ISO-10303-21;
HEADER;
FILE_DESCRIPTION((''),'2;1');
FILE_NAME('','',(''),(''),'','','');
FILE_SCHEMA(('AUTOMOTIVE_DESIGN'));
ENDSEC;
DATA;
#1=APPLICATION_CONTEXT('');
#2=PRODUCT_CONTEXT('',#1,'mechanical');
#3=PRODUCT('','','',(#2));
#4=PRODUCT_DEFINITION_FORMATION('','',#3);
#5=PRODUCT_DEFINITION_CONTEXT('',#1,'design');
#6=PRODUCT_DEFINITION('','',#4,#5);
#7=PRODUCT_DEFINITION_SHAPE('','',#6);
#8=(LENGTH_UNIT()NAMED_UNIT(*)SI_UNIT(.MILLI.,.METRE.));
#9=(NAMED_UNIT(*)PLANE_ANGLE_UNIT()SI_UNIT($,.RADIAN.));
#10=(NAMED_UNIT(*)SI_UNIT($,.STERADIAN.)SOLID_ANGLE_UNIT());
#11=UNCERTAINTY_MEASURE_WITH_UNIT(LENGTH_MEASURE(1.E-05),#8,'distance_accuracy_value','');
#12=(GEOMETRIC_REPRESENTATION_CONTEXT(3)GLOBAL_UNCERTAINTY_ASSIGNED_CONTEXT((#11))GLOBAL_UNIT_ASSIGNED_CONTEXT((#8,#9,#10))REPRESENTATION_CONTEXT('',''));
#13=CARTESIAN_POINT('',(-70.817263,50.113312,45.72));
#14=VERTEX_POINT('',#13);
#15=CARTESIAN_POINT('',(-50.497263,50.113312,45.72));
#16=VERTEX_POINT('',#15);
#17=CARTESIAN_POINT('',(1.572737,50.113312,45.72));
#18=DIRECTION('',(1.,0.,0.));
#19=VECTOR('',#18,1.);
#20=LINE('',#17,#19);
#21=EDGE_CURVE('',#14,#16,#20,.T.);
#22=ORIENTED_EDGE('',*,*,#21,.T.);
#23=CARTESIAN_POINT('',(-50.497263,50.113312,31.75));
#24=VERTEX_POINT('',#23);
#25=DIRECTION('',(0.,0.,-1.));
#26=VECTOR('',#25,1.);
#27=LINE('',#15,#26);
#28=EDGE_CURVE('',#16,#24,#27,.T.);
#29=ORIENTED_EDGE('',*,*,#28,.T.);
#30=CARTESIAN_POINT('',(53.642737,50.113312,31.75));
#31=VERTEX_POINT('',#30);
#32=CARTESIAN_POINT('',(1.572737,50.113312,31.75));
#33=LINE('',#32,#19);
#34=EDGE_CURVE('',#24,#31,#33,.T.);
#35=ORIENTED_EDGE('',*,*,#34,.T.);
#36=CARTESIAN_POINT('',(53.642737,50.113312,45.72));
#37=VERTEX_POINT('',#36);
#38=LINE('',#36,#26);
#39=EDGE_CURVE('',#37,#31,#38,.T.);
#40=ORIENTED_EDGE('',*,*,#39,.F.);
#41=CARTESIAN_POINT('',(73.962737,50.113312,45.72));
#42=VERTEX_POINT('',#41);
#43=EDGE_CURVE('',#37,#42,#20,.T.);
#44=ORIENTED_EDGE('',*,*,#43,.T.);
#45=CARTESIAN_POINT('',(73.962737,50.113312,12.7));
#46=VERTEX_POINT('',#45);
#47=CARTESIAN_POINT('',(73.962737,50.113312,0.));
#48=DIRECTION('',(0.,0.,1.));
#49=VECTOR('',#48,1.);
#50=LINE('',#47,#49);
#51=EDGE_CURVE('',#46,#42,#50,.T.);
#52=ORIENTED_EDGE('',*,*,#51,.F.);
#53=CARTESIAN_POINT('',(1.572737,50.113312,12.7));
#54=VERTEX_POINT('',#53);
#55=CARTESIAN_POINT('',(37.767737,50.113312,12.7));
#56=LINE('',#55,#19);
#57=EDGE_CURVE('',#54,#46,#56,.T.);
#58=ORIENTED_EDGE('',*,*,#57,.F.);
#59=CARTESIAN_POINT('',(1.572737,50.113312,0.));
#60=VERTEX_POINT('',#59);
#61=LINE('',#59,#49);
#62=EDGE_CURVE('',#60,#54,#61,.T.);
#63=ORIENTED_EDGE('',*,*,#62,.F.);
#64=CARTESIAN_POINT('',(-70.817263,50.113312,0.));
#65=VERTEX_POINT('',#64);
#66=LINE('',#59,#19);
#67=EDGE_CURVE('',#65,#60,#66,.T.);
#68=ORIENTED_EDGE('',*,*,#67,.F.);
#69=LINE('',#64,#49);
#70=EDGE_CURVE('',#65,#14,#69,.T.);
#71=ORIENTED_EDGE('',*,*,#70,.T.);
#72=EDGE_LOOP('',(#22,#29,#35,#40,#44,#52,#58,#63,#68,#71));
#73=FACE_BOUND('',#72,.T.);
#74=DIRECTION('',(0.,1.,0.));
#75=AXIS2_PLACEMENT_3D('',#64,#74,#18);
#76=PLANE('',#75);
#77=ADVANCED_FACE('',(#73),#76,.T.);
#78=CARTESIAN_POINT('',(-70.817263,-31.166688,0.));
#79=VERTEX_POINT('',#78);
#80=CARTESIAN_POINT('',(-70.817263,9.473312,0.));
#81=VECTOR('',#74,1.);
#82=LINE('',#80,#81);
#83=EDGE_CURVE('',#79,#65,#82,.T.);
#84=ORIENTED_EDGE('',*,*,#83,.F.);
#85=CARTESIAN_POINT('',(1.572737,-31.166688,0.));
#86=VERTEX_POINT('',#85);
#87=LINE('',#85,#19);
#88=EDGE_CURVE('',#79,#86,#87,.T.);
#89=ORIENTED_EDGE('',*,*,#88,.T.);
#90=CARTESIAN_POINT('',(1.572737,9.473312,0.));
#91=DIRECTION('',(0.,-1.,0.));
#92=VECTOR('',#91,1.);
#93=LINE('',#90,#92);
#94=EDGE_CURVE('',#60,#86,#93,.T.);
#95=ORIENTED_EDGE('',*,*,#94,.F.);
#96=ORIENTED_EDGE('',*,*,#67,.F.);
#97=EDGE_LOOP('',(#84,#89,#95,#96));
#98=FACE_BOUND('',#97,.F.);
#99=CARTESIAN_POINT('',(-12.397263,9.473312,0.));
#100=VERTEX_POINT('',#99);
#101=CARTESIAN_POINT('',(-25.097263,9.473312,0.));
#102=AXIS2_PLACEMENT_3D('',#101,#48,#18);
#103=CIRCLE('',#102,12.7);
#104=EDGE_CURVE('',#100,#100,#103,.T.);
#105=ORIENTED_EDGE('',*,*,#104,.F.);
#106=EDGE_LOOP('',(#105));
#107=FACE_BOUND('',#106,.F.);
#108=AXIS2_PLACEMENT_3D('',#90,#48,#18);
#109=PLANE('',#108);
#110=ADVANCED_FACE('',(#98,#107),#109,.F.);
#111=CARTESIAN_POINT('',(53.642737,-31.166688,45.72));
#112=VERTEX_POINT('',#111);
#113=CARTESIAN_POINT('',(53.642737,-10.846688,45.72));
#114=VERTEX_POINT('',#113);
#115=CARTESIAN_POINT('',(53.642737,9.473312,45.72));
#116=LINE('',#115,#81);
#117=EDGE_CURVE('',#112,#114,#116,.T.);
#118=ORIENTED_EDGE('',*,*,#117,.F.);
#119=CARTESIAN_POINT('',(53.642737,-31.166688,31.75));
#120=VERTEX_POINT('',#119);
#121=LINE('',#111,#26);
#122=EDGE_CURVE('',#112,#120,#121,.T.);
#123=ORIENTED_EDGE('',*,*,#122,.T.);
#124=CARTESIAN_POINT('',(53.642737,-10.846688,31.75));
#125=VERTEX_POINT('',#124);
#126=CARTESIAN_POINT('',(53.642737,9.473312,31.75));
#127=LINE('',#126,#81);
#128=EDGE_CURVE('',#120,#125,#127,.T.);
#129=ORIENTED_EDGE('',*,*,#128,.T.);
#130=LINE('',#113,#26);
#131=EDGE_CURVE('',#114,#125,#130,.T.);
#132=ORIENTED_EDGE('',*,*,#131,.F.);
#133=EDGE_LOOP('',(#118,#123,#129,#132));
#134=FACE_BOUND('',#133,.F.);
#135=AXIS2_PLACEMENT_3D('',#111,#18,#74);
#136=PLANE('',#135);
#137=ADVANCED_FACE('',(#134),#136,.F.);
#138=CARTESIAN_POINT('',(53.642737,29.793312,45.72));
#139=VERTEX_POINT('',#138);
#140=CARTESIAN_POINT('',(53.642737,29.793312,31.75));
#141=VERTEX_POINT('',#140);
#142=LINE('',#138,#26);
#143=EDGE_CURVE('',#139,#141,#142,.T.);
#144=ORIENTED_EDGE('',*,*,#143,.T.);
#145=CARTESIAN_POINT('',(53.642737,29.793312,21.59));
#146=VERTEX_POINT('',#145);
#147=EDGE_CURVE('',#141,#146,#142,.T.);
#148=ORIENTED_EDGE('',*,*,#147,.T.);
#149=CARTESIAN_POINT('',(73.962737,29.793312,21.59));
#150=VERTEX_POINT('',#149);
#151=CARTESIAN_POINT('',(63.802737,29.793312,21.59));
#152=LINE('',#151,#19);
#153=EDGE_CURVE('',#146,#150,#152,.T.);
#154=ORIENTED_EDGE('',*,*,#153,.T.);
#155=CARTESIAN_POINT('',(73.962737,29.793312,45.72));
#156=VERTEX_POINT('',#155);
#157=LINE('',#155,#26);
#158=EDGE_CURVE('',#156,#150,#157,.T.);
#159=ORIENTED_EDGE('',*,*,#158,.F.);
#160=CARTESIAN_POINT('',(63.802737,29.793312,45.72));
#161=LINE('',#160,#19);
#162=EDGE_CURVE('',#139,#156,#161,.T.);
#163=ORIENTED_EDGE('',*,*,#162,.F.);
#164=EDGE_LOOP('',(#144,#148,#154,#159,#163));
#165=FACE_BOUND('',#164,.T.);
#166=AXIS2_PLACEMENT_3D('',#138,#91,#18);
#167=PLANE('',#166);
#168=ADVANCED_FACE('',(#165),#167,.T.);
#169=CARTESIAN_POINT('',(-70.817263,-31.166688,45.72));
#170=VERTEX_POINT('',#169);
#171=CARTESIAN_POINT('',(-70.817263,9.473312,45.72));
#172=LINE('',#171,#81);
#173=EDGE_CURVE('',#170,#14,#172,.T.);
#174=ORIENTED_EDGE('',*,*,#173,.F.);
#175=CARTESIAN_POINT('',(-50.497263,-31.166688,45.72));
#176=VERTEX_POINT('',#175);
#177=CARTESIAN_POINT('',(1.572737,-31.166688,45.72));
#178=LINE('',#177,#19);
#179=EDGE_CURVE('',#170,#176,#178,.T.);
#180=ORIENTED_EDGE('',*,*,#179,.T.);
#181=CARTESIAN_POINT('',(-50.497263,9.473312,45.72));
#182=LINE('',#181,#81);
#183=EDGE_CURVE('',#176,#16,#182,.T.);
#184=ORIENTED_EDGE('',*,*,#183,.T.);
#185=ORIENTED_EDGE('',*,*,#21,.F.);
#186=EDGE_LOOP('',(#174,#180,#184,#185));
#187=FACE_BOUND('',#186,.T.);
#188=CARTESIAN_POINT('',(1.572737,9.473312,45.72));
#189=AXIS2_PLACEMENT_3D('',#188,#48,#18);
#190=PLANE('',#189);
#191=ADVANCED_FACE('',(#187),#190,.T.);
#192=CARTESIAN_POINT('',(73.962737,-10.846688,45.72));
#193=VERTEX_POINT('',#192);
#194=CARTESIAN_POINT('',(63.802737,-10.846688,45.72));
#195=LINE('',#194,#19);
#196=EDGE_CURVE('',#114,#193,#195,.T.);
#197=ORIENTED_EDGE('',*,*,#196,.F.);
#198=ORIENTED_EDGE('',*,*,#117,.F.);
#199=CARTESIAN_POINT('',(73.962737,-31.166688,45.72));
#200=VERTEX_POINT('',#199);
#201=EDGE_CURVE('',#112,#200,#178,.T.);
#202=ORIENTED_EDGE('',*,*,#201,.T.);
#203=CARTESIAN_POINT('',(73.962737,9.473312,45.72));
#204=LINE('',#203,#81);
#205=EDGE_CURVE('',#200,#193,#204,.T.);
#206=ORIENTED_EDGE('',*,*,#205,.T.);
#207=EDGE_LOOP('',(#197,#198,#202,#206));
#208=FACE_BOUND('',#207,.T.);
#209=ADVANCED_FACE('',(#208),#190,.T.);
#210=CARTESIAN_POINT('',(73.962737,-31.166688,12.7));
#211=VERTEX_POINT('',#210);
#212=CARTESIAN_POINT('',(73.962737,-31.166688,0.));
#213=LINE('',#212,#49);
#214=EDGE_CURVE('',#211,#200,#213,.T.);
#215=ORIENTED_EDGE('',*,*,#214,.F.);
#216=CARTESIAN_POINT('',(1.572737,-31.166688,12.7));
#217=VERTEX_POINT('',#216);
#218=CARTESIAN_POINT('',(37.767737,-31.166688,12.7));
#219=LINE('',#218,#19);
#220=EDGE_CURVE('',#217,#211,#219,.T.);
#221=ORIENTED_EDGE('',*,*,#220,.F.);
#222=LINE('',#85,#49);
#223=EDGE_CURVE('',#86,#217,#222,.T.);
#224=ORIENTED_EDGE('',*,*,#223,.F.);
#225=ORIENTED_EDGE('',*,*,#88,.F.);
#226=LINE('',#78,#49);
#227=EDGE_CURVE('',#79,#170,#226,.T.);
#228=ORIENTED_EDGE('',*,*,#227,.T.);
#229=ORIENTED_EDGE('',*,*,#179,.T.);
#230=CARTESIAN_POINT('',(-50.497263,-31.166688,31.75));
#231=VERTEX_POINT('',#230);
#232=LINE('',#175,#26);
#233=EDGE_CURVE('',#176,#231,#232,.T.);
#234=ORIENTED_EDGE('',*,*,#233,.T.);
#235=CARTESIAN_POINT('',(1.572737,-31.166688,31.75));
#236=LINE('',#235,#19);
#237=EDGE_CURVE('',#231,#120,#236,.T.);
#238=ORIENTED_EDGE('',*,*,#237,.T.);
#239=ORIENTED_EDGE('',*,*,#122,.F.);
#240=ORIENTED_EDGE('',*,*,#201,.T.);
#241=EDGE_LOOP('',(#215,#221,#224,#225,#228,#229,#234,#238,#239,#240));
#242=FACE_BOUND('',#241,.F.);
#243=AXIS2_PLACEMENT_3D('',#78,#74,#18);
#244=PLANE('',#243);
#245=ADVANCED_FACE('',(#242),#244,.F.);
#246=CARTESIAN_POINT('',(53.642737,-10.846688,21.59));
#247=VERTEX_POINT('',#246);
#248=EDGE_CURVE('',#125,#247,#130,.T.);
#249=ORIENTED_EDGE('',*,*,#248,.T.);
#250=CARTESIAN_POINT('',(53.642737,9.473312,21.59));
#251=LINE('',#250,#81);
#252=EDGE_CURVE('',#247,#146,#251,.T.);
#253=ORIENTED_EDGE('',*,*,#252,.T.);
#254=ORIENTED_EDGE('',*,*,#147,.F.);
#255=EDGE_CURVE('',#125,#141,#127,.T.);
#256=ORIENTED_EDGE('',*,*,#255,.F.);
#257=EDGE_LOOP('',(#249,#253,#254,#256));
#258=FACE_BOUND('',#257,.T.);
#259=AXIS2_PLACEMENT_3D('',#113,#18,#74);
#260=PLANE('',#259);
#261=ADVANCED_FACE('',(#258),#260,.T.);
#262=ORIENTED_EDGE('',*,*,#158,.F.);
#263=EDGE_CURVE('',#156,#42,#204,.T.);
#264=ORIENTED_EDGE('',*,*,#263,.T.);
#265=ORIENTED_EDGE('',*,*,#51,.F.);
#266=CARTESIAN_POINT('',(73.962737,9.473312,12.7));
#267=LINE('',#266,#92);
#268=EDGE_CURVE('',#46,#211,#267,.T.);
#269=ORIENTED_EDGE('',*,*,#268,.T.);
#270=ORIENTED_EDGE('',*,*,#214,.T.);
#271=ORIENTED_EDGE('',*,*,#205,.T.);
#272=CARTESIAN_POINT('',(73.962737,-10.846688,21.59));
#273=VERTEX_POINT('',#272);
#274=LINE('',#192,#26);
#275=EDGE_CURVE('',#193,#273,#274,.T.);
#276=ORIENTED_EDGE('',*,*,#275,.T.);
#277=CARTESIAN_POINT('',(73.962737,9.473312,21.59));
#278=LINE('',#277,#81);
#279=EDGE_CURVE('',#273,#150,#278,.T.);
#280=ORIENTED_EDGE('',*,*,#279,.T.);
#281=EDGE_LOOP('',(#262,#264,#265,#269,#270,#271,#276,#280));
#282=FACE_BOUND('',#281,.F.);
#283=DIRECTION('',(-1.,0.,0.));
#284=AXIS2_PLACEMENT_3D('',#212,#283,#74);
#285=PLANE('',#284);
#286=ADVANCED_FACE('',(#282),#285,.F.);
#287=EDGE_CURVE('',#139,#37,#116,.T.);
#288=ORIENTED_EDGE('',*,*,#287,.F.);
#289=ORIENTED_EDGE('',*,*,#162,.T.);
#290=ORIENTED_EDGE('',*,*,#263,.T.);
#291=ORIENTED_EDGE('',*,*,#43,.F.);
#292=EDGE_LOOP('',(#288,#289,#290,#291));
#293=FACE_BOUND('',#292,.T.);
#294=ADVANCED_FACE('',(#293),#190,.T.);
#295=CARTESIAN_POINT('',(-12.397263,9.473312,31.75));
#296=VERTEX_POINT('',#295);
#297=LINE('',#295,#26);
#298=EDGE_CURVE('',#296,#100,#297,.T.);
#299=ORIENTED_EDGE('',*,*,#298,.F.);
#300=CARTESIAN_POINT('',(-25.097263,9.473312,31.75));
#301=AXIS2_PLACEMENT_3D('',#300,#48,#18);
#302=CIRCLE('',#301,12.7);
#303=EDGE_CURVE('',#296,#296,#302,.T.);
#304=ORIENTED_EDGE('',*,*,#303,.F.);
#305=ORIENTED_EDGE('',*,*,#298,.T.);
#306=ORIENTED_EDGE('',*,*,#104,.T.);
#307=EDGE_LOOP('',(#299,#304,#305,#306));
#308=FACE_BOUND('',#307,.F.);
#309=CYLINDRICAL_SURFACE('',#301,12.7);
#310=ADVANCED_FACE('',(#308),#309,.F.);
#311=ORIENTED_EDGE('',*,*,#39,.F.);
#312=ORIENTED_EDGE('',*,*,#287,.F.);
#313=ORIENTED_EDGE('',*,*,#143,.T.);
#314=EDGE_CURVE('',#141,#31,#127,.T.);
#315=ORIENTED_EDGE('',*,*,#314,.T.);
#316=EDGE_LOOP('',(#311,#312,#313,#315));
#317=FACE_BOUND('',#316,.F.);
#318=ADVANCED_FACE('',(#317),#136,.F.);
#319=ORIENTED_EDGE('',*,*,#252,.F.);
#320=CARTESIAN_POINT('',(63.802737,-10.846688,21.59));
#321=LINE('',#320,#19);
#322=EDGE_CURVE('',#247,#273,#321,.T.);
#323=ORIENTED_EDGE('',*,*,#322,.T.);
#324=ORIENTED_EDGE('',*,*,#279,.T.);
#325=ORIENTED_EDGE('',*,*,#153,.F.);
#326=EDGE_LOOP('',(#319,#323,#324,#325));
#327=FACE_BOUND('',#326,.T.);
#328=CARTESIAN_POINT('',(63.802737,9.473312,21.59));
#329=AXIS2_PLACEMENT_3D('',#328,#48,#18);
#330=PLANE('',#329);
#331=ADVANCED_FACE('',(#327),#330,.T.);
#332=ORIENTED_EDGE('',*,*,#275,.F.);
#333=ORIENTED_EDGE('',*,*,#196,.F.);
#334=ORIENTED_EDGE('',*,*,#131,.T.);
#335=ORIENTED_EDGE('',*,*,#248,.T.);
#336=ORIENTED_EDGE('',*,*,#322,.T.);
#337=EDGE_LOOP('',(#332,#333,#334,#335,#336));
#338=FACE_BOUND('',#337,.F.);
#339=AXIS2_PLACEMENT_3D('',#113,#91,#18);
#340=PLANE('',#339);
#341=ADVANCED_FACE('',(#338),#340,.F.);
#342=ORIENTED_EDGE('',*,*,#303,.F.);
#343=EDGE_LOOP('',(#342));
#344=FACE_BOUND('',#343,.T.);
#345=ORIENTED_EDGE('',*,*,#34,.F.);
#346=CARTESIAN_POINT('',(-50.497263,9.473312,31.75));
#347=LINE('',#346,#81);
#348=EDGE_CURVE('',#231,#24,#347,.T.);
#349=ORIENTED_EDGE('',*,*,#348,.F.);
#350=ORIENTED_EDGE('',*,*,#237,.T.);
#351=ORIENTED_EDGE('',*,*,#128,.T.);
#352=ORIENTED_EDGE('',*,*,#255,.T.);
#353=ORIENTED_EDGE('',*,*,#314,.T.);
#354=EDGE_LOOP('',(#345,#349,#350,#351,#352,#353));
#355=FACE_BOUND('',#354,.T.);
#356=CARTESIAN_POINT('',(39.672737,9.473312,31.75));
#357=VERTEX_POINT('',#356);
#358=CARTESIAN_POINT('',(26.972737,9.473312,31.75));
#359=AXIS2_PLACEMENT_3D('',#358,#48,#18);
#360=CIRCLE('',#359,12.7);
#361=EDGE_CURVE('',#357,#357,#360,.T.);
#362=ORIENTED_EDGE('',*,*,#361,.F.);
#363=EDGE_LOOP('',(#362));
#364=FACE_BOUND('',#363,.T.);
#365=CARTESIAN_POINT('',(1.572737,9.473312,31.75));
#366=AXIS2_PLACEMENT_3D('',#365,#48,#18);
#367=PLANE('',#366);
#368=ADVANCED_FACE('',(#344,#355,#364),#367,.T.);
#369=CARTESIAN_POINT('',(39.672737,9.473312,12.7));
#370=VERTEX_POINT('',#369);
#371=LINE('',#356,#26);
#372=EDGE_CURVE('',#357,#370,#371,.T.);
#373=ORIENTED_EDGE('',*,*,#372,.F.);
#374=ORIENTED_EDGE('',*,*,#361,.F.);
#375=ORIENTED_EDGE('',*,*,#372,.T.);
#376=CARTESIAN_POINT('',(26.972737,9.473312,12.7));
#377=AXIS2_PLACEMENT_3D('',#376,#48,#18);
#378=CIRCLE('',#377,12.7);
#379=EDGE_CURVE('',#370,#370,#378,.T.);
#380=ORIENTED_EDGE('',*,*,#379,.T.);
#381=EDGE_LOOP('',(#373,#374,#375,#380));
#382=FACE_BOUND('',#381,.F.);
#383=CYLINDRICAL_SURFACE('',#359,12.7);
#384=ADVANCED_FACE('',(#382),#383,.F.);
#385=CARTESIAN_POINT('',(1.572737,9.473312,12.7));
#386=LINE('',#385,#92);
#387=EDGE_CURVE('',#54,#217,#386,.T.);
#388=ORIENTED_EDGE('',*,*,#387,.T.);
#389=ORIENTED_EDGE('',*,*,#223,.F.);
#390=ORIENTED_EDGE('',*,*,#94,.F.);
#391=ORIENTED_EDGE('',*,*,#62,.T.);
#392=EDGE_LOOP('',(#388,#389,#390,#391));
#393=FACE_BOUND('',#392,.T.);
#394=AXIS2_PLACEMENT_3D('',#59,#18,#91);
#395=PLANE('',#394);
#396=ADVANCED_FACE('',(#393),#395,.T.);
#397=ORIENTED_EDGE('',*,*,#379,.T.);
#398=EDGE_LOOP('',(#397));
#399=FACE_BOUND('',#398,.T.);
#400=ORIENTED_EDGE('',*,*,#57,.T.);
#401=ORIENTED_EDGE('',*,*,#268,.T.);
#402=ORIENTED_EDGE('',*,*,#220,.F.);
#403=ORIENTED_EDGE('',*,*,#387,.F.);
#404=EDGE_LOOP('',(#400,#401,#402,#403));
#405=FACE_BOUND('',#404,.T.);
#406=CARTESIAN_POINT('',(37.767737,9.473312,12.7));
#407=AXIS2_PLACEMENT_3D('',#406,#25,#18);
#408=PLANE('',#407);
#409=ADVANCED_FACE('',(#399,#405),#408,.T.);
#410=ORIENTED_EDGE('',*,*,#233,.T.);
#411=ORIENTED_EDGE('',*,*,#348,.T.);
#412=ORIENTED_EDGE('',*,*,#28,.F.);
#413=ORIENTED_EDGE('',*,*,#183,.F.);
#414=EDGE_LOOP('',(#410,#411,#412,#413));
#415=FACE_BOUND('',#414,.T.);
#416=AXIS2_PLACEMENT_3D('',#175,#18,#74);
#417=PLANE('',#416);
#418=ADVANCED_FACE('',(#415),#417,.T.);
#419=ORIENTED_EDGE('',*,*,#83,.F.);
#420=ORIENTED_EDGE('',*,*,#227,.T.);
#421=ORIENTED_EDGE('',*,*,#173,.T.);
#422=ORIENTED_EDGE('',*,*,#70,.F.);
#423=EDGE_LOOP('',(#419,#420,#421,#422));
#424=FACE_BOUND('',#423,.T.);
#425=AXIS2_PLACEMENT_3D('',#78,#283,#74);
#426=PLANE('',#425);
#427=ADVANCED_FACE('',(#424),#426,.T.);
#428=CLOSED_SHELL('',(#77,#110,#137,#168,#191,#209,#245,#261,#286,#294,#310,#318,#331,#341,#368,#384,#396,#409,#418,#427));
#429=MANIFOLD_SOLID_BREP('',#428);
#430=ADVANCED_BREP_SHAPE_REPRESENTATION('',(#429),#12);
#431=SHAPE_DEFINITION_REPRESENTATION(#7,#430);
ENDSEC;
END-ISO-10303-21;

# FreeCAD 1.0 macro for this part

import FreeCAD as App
import Part
import Sketcher

V = App.Vector
Q = App.Units.Quantity


def add_polygon(sketch, points):
    """Adds a closed chain of lines whose ends are joined by coincident constraints."""
    first, n = sketch.GeometryCount, len(points)
    for a, b in zip(points, points[1:] + points[:1]):
        sketch.addGeometry(Part.LineSegment(App.Vector(*a, 0), App.Vector(*b, 0)), False)
    for i in range(n):
        sketch.addConstraint(Sketcher.Constraint("Coincident", first + i, 2, first + (i + 1) % n, 1))

doc = App.newDocument("Part")
body = doc.addObject("PartDesign::Body", "Body")

# Sketch on XY plane
sketch1 = body.newObject("Sketcher::SketchObject", "Sketch")
sketch1.AttachmentSupport = (doc.getObject("XY_Plane"), [""])
sketch1.MapMode = "FlatFace"
add_polygon(sketch1, [(-70.817263, 50.113312), (-70.817263, -31.166688), (73.962737, -31.166688), (73.962737, 50.113312)])  # lines 0-3
sketch1.addConstraint([
    Sketcher.Constraint("Vertical", 0),
    Sketcher.Constraint("Horizontal", 1),
    Sketcher.Constraint("Vertical", 2),
    Sketcher.Constraint("Horizontal", 3),
    Sketcher.Constraint("DistanceX", 1, 1, 1, 2, Q("5.7 in")),
    Sketcher.Constraint("DistanceY", 0, 2, 0, 1, Q("3.2 in")),
    Sketcher.Constraint("DistanceY", 0, 2, -1, 1, 31.166688),
    Sketcher.Constraint("DistanceX", 0, 2, -1, 1, 70.817263),
])
pad1 = body.newObject("PartDesign::Pad", "Pad")
pad1.Profile = sketch1
pad1.Length = Q("1.8 in")

# Sketch on XY plane
sketch2 = body.newObject("Sketcher::SketchObject", "Sketch001")
sketch2.AttachmentSupport = (doc.getObject("XY_Plane"), [""])
sketch2.MapMode = "FlatFace"
sketch2.AttachmentOffset = App.Placement(V(0, 0, 1.8 * 25.4), App.Rotation())
add_polygon(sketch2, [(-50.497263, 50.113312), (-50.497263, -31.166688), (53.642737, -31.166688), (53.642737, 50.113312)])  # lines 0-3
sketch2.addConstraint([
    Sketcher.Constraint("Vertical", 0),
    Sketcher.Constraint("Horizontal", 1),
    Sketcher.Constraint("Vertical", 2),
    Sketcher.Constraint("Horizontal", 3),
    Sketcher.Constraint("DistanceX", 1, 1, 1, 2, Q("4.1 in")),
    Sketcher.Constraint("DistanceY", 0, 2, 0, 1, Q("3.2 in")),
    Sketcher.Constraint("DistanceY", 0, 2, -1, 1, 31.166688),
    Sketcher.Constraint("DistanceX", 0, 2, -1, 1, 50.497263),
])
pocket1 = body.newObject("PartDesign::Pocket", "Pocket")
pocket1.Profile = sketch2
pocket1.Length = Q("0.55 in")

# Sketch on XY plane
sketch3 = body.newObject("Sketcher::SketchObject", "Sketch002")
sketch3.AttachmentSupport = (doc.getObject("XY_Plane"), [""])
sketch3.MapMode = "FlatFace"
sketch3.AttachmentOffset = App.Placement(V(0, 0, 1.8 * 25.4), App.Rotation())
add_polygon(sketch3, [(53.642737, 29.793312), (53.642737, -10.846688), (73.962737, -10.846688), (73.962737, 29.793312)])  # lines 0-3
sketch3.addConstraint([
    Sketcher.Constraint("Vertical", 0),
    Sketcher.Constraint("Horizontal", 1),
    Sketcher.Constraint("Vertical", 2),
    Sketcher.Constraint("Horizontal", 3),
    Sketcher.Constraint("DistanceX", 1, 1, 1, 2, Q("0.8 in")),
    Sketcher.Constraint("DistanceY", 0, 2, 0, 1, Q("1.6 in")),
    Sketcher.Constraint("DistanceY", -1, 1, 2, 2, 29.793312),
    Sketcher.Constraint("DistanceX", -1, 1, 0, 2, 53.642737),
])
pocket2 = body.newObject("PartDesign::Pocket", "Pocket001")
pocket2.Profile = sketch3
pocket2.Length = Q("0.95 in")

# Sketch on XY plane
sketch4 = body.newObject("Sketcher::SketchObject", "Sketch003")
sketch4.AttachmentSupport = (doc.getObject("XY_Plane"), [""])
sketch4.MapMode = "FlatFace"
add_polygon(sketch4, [(1.572737, -31.166688), (1.572737, 50.113312), (73.962737, 50.113312), (73.962737, -31.166688)])  # lines 0-3
sketch4.addConstraint([
    Sketcher.Constraint("Vertical", 0),
    Sketcher.Constraint("Horizontal", 1),
    Sketcher.Constraint("Vertical", 2),
    Sketcher.Constraint("Horizontal", 3),
    Sketcher.Constraint("DistanceY", 0, 1, 0, 2, Q("3.2 in")),
    Sketcher.Constraint("DistanceX", 1, 1, 1, 2, Q("2.85 in")),
    Sketcher.Constraint("DistanceY", 2, 2, -1, 1, 31.166688),
    Sketcher.Constraint("DistanceX", -1, 1, 0, 2, 1.572737),
])
pocket3 = body.newObject("PartDesign::Pocket", "Pocket002")
pocket3.Profile = sketch4
pocket3.Length = Q("0.5 in")
pocket3.Reversed = True

# Sketch on XY plane
sketch5 = body.newObject("Sketcher::SketchObject", "Sketch004")
sketch5.AttachmentSupport = (doc.getObject("XY_Plane"), [""])
sketch5.MapMode = "FlatFace"
sketch5.AttachmentOffset = App.Placement(V(0, 0, 1.25 * 25.4), App.Rotation())
sketch5.addGeometry(Part.Circle(V(-25.097263, 9.473312, 0), V(0, 0, 1), 12.7), False)
sketch5.addConstraint([
    Sketcher.Constraint("Diameter", 0, Q("1 in")),
    Sketcher.Constraint("DistanceX", 0, 3, -1, 1, 25.097263),
    Sketcher.Constraint("DistanceY", -1, 1, 0, 3, 9.473312),
])
pocket4 = body.newObject("PartDesign::Pocket", "Pocket003")
pocket4.Profile = sketch5
pocket4.Length = Q("1.26 in")

# Sketch on XY plane
sketch6 = body.newObject("Sketcher::SketchObject", "Sketch005")
sketch6.AttachmentSupport = (doc.getObject("XY_Plane"), [""])
sketch6.MapMode = "FlatFace"
sketch6.AttachmentOffset = App.Placement(V(0, 0, 1.25 * 25.4), App.Rotation())
sketch6.addGeometry(Part.Circle(V(26.972737, 9.473312, 0), V(0, 0, 1), 12.7), False)
sketch6.addConstraint([
    Sketcher.Constraint("Diameter", 0, Q("1 in")),
    Sketcher.Constraint("DistanceX", -1, 1, 0, 3, 26.972737),
    Sketcher.Constraint("DistanceY", -1, 1, 0, 3, 9.473312),
])
pocket5 = body.newObject("PartDesign::Pocket", "Pocket004")
pocket5.Profile = sketch6
pocket5.Length = Q("0.77 in")

doc.recompute()
